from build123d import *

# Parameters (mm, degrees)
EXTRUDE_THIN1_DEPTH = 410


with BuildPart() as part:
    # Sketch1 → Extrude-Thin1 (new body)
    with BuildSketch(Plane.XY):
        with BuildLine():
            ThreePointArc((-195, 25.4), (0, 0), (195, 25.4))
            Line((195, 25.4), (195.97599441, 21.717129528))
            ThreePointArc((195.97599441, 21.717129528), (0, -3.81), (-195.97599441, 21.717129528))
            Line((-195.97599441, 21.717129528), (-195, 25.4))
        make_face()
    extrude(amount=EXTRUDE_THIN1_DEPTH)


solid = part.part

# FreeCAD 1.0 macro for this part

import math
import FreeCAD as App
import Part
import Sketcher
Q = App.Units.Quantity

doc = App.newDocument("Part")
body = doc.addObject("PartDesign::Body", "Body")

sketch1 = doc.addObject("Sketcher::SketchObject", "Sketch")
body.addObject(sketch1)
sketch1.AttachmentSupport = (doc.XY_Plane, [""])
sketch1.MapMode = "FlatFace"
sketch1.addGeometry(Part.ArcOfCircle(Part.Circle(App.Vector(0, 761.2, 0), App.Vector(0, 0, 1), 761.2), math.radians(-105), math.radians(-75)), False)
sketch1.addGeometry(Part.LineSegment(App.Vector(-195, 25.4, 0), App.Vector(-196, 21.7, 0)), False)
sketch1.addGeometry(Part.ArcOfCircle(Part.Circle(App.Vector(0, 761.2, 0), App.Vector(0, 0, 1), 765), math.radians(-105), math.radians(-75)), False)
sketch1.addGeometry(Part.LineSegment(App.Vector(196, 21.7, 0), App.Vector(195, 25.4, 0)), False)
sketch1.addConstraint(Sketcher.Constraint("Coincident", 0, 1, 1, 1))
sketch1.addConstraint(Sketcher.Constraint("Coincident", 1, 2, 2, 1))
sketch1.addConstraint(Sketcher.Constraint("Coincident", 2, 2, 3, 1))
sketch1.addConstraint(Sketcher.Constraint("Coincident", 3, 2, 0, 2))
sketch1.addConstraint(Sketcher.Constraint("Coincident", 2, 3, 0, 3))
sketch1.addConstraint(Sketcher.Constraint("PointOnObject", 0, 3, -2))
sketch1.addConstraint(Sketcher.Constraint("DistanceX", -1, 1, 3, 2, 195.0))
sketch1.addConstraint(Sketcher.Constraint("DistanceY", -1, 1, 0, 1, 25.4))
sketch1.addConstraint(Sketcher.Constraint("DistanceY", -1, 1, 3, 2, 25.4))
sketch1.addConstraint(Sketcher.Constraint("Distance", 1, 3.81))
sketch1.addConstraint(Sketcher.Constraint("Radius", 0, 761.223622))
sketch1.addConstraint(Sketcher.Constraint("DistanceY", -1, 1, 1, 2, 21.71713))
sketch1.addConstraint(Sketcher.Constraint("Angle", 3, Q("104.842717 deg")))
pad1 = doc.addObject("PartDesign::Pad", "Pad")
body.addObject(pad1)
pad1.Profile = sketch1
pad1.Length = 410

doc.recompute()
